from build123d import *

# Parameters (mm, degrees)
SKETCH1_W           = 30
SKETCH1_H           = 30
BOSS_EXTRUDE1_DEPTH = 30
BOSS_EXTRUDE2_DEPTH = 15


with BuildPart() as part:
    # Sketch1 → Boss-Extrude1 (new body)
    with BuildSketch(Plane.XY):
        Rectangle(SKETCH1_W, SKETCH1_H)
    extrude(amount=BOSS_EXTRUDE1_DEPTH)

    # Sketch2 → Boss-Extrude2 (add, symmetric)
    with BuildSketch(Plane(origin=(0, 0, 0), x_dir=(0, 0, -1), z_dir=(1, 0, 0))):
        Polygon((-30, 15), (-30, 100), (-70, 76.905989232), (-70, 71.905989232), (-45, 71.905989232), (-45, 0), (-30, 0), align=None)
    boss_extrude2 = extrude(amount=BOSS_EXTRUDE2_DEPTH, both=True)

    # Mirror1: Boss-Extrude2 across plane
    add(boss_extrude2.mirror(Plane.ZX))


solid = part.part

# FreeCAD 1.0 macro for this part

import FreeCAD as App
import Part
import Sketcher

V = App.Vector
Q = App.Units.Quantity

doc = App.newDocument("Part")
body = doc.addObject("PartDesign::Body", "Body")

# Sketch on XY plane
sketch1 = body.newObject("Sketcher::SketchObject", "Sketch")
sketch1.AttachmentSupport = (doc.getObject("XY_Plane"), [""])
sketch1.MapMode = "FlatFace"
sketch1.addGeometry(Part.LineSegment(V(-15, 15, 0), V(-15, -15, 0)), False)
sketch1.addGeometry(Part.LineSegment(V(-15, -15, 0), V(15, -15, 0)), False)
sketch1.addGeometry(Part.LineSegment(V(15, -15, 0), V(15, 15, 0)), False)
sketch1.addGeometry(Part.LineSegment(V(15, 15, 0), V(-15, 15, 0)), False)
sketch1.addConstraint(Sketcher.Constraint("Coincident", 0, 2, 1, 1))
sketch1.addConstraint(Sketcher.Constraint("Coincident", 1, 2, 2, 1))
sketch1.addConstraint(Sketcher.Constraint("Coincident", 2, 2, 3, 1))
sketch1.addConstraint(Sketcher.Constraint("Coincident", 3, 2, 0, 1))
sketch1.addConstraint(Sketcher.Constraint("Vertical", 0))
sketch1.addConstraint(Sketcher.Constraint("Horizontal", 1))
sketch1.addConstraint(Sketcher.Constraint("Vertical", 2))
sketch1.addConstraint(Sketcher.Constraint("Horizontal", 3))
sketch1.addConstraint(Sketcher.Constraint("Symmetric", 0, 2, 2, 2, -1, 1))
sketch1.addConstraint(Sketcher.Constraint("Equal", 3, 0))
sketch1.addConstraint(Sketcher.Constraint("DistanceX", 1, 1, 1, 2, 30.0))
pad1 = body.newObject("PartDesign::Pad", "Pad")
pad1.Profile = sketch1
pad1.Length = 30

# Sketch on YZ plane
sketch2 = body.newObject("Sketcher::SketchObject", "Sketch001")
sketch2.AttachmentSupport = (doc.getObject("YZ_Plane"), [""])
sketch2.MapMode = "FlatFace"
sketch2.addGeometry(Part.LineSegment(V(100, 30, 0), V(77, 70, 0)), False)
sketch2.addGeometry(Part.LineSegment(V(77, 70, 0), V(72, 70, 0)), False)
sketch2.addGeometry(Part.LineSegment(V(72, 70, 0), V(72, 45, 0)), False)
sketch2.addGeometry(Part.LineSegment(V(72, 45, 0), V(0, 45, 0)), False)
sketch2.addGeometry(Part.LineSegment(V(0, 45, 0), V(0, 30, 0)), False)
sketch2.addGeometry(Part.LineSegment(V(0, 30, 0), V(100, 30, 0)), False)
sketch2.addConstraint(Sketcher.Constraint("Coincident", 0, 2, 1, 1))
sketch2.addConstraint(Sketcher.Constraint("Coincident", 1, 2, 2, 1))
sketch2.addConstraint(Sketcher.Constraint("Coincident", 2, 2, 3, 1))
sketch2.addConstraint(Sketcher.Constraint("Coincident", 3, 2, 4, 1))
sketch2.addConstraint(Sketcher.Constraint("Coincident", 4, 2, 5, 1))
sketch2.addConstraint(Sketcher.Constraint("Coincident", 5, 2, 0, 1))
sketch2.addConstraint(Sketcher.Constraint("Horizontal", 1))
sketch2.addConstraint(Sketcher.Constraint("Vertical", 2))
sketch2.addConstraint(Sketcher.Constraint("Horizontal", 3))
sketch2.addConstraint(Sketcher.Constraint("Vertical", 4))
sketch2.addConstraint(Sketcher.Constraint("Horizontal", 5))
sketch2.addConstraint(Sketcher.Constraint("PointOnObject", 3, 2, -2))
sketch2.addConstraint(Sketcher.Constraint("DistanceX", 1, 2, 1, 1, 5.0))
sketch2.addConstraint(Sketcher.Constraint("DistanceX", 5, 1, 5, 2, 100.0))
sketch2.addConstraint(Sketcher.Constraint("DistanceY", 2, 2, 2, 1, 25.0))
sketch2.addConstraint(Sketcher.Constraint("DistanceY", 4, 2, 4, 1, 15.0))
sketch2.addConstraint(Sketcher.Constraint("Angle", 0, Q("120 deg")))
sketch2.addConstraint(Sketcher.Constraint("DistanceY", -1, 1, 0, 2, 70.0))
pad2 = body.newObject("PartDesign::Pad", "Pad001")
pad2.Profile = sketch2
pad2.Length = 30
pad2.Midplane = True
doc.recompute()

mirrored = body.newObject("PartDesign::Mirrored", "Mirrored")
mirrored.Originals = [pad2]
mirrored.MirrorPlane = (doc.getObject("XZ_Plane"), [""])
body.Tip = mirrored

doc.recompute()
